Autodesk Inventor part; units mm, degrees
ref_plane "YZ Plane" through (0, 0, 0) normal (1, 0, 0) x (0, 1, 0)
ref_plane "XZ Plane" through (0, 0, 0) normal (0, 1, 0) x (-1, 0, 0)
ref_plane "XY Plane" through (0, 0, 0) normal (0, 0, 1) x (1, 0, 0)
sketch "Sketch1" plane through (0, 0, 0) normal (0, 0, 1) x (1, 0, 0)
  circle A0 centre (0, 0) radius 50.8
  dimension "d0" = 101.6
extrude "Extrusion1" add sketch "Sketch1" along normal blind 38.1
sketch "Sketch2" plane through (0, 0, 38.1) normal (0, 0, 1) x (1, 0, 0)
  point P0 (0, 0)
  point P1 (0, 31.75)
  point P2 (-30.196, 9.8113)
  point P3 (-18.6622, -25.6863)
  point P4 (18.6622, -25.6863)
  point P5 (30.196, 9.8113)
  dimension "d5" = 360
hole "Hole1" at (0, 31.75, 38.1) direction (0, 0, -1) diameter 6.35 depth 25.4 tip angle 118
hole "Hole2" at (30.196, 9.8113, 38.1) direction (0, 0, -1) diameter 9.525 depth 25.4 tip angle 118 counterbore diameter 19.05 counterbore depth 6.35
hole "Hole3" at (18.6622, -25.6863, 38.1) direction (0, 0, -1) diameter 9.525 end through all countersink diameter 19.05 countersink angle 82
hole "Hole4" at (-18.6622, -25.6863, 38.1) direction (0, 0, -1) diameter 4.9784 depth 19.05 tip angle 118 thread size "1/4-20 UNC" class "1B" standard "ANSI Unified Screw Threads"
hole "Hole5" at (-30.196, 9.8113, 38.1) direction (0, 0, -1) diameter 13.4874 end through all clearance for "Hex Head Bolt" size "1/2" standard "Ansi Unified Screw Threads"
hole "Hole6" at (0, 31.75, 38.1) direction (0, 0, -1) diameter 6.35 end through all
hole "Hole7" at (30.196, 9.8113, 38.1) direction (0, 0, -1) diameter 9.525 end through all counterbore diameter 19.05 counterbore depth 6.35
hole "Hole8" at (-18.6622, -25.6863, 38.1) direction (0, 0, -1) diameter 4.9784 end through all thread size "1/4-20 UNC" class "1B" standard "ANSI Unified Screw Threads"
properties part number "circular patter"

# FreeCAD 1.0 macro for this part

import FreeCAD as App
import Part
import Sketcher

V = App.Vector
Q = App.Units.Quantity

doc = App.newDocument("Part")
body = doc.addObject("PartDesign::Body", "Body")

# Sketch on XY plane
sketch1 = doc.addObject("Sketcher::SketchObject", "Sketch")
body.addObject(sketch1)
sketch1.AttachmentSupport = (doc.XY_Plane, [""])
sketch1.MapMode = "FlatFace"
sketch1.addGeometry(Part.Circle(V(0, 0, 0), V(0, 0, 1), 51), False)
sketch1.addConstraint([
    Sketcher.Constraint("Coincident", 0, 3, -1, 1),
    Sketcher.Constraint("Diameter", 0, Q("4 in")),
])
pad1 = doc.addObject("PartDesign::Pad", "Pad")
body.addObject(pad1)
pad1.Profile = sketch1
pad1.Length = Q("1.5 in")

# Sketch on XY plane
sketch2 = doc.addObject("Sketcher::SketchObject", "Sketch001")
body.addObject(sketch2)
sketch2.AttachmentSupport = (doc.XY_Plane, [""])
sketch2.MapMode = "FlatFace"
sketch2.AttachmentOffset = App.Placement(V(0, 0, 1.5 * 25.4), App.Rotation())
sketch2.addGeometry(Part.Circle(V(0, 31.8, 0), V(0, 0, 1), 3.2), False)
sketch2.addConstraint([
    Sketcher.Constraint("PointOnObject", 0, 3, -2),
    Sketcher.Constraint("Diameter", 0, Q("0.25 in")),
    Sketcher.Constraint("DistanceY", -1, 1, 0, 3, Q("1.25 in")),
])
doc.recompute()
hole = doc.addObject("PartDesign::Hole", "Hole")
body.addObject(hole)
hole.Profile = sketch2
hole.ThreadType = "None"
hole.Diameter = Q("0.25 in")
hole.DepthType = "Dimension"
hole.Depth = Q("1 in")
hole.DrillPoint = "Angled"
hole.DrillPointAngle = 118

# Sketch on XY plane
sketch3 = doc.addObject("Sketcher::SketchObject", "Sketch002")
body.addObject(sketch3)
sketch3.AttachmentSupport = (doc.XY_Plane, [""])
sketch3.MapMode = "FlatFace"
sketch3.AttachmentOffset = App.Placement(V(0, 0, 1.5 * 25.4), App.Rotation())
sketch3.addGeometry(Part.Circle(V(30.2, 9.8, 0), V(0, 0, 1), 4.8), False)
sketch3.addConstraint([
    Sketcher.Constraint("Diameter", 0, Q("0.375 in")),
    Sketcher.Constraint("DistanceX", -1, 1, 0, 3, 30.196),
    Sketcher.Constraint("DistanceY", -1, 1, 0, 3, 9.8113),
])
doc.recompute()
hole2 = doc.addObject("PartDesign::Hole", "Hole001")
body.addObject(hole2)
hole2.Profile = sketch3
hole2.ThreadType = "None"
hole2.Diameter = Q("0.375 in")
hole2.DepthType = "Dimension"
hole2.Depth = Q("1 in")
hole2.DrillPoint = "Angled"
hole2.DrillPointAngle = 118
hole2.HoleCutType = "Counterbore"
hole2.HoleCutDiameter = Q("0.75 in")
hole2.HoleCutDepth = Q("0.25 in")

# Sketch on XY plane
sketch4 = doc.addObject("Sketcher::SketchObject", "Sketch003")
body.addObject(sketch4)
sketch4.AttachmentSupport = (doc.XY_Plane, [""])
sketch4.MapMode = "FlatFace"
sketch4.AttachmentOffset = App.Placement(V(0, 0, 1.5 * 25.4), App.Rotation())
sketch4.addGeometry(Part.Circle(V(18.7, -25.7, 0), V(0, 0, 1), 4.8), False)
sketch4.addConstraint([
    Sketcher.Constraint("Diameter", 0, Q("0.375 in")),
    Sketcher.Constraint("DistanceX", -1, 1, 0, 3, 18.6622),
    Sketcher.Constraint("DistanceY", 0, 3, -1, 1, 25.6863),
])
doc.recompute()
hole3 = doc.addObject("PartDesign::Hole", "Hole002")
body.addObject(hole3)
hole3.Profile = sketch4
hole3.ThreadType = "None"
hole3.Diameter = Q("0.375 in")
hole3.DepthType = "ThroughAll"
hole3.HoleCutType = "Countersink"
hole3.HoleCutDiameter = Q("0.75 in")
hole3.HoleCutCountersinkAngle = 82

# Sketch on XY plane
sketch5 = doc.addObject("Sketcher::SketchObject", "Sketch004")
body.addObject(sketch5)
sketch5.AttachmentSupport = (doc.XY_Plane, [""])
sketch5.MapMode = "FlatFace"
sketch5.AttachmentOffset = App.Placement(V(0, 0, 1.5 * 25.4), App.Rotation())
sketch5.addGeometry(Part.Circle(V(-18.7, -25.7, 0), V(0, 0, 1), 2.5), False)
sketch5.addConstraint([
    Sketcher.Constraint("Diameter", 0, Q("0.196 in")),
    Sketcher.Constraint("DistanceX", 0, 3, -1, 1, 18.6622),
    Sketcher.Constraint("DistanceY", 0, 3, -1, 1, 25.6863),
])
doc.recompute()
hole4 = doc.addObject("PartDesign::Hole", "Hole003")
body.addObject(hole4)
hole4.Profile = sketch5
hole4.ThreadType = "None"
hole4.Diameter = Q("0.196 in")
hole4.DepthType = "Dimension"
hole4.Depth = Q("0.75 in")
hole4.DrillPoint = "Angled"
hole4.DrillPointAngle = 118

# Sketch on XY plane
sketch6 = doc.addObject("Sketcher::SketchObject", "Sketch005")
body.addObject(sketch6)
sketch6.AttachmentSupport = (doc.XY_Plane, [""])
sketch6.MapMode = "FlatFace"
sketch6.AttachmentOffset = App.Placement(V(0, 0, 1.5 * 25.4), App.Rotation())
sketch6.addGeometry(Part.Circle(V(-30, 10, 0), V(0, 0, 1), 7), False)
sketch6.addConstraint([
    Sketcher.Constraint("Diameter", 0, Q("0.531 in")),
    Sketcher.Constraint("DistanceX", 0, 3, -1, 1, 30.196),
    Sketcher.Constraint("DistanceY", -1, 1, 0, 3, 9.8113),
])
doc.recompute()
hole5 = doc.addObject("PartDesign::Hole", "Hole004")
body.addObject(hole5)
hole5.Profile = sketch6
hole5.ThreadType = "None"
hole5.Diameter = Q("0.531 in")
hole5.DepthType = "ThroughAll"

# Sketch on XY plane
sketch7 = doc.addObject("Sketcher::SketchObject", "Sketch006")
body.addObject(sketch7)
sketch7.AttachmentSupport = (doc.XY_Plane, [""])
sketch7.MapMode = "FlatFace"
sketch7.AttachmentOffset = App.Placement(V(0, 0, 1.5 * 25.4), App.Rotation())
sketch7.addGeometry(Part.Circle(V(0, 31.8, 0), V(0, 0, 1), 3.2), False)
sketch7.addConstraint([
    Sketcher.Constraint("PointOnObject", 0, 3, -2),
    Sketcher.Constraint("Diameter", 0, Q("0.25 in")),
    Sketcher.Constraint("DistanceY", -1, 1, 0, 3, Q("1.25 in")),
])
doc.recompute()
hole6 = doc.addObject("PartDesign::Hole", "Hole005")
body.addObject(hole6)
hole6.Profile = sketch7
hole6.ThreadType = "None"
hole6.Diameter = Q("0.25 in")
hole6.DepthType = "ThroughAll"

# Sketch on XY plane
sketch8 = doc.addObject("Sketcher::SketchObject", "Sketch007")
body.addObject(sketch8)
sketch8.AttachmentSupport = (doc.XY_Plane, [""])
sketch8.MapMode = "FlatFace"
sketch8.AttachmentOffset = App.Placement(V(0, 0, 1.5 * 25.4), App.Rotation())
sketch8.addGeometry(Part.Circle(V(30.2, 9.8, 0), V(0, 0, 1), 4.8), False)
sketch8.addConstraint([
    Sketcher.Constraint("Diameter", 0, Q("0.375 in")),
    Sketcher.Constraint("DistanceX", -1, 1, 0, 3, 30.196),
    Sketcher.Constraint("DistanceY", -1, 1, 0, 3, 9.8113),
])
doc.recompute()
hole7 = doc.addObject("PartDesign::Hole", "Hole006")
body.addObject(hole7)
hole7.Profile = sketch8
hole7.ThreadType = "None"
hole7.Diameter = Q("0.375 in")
hole7.DepthType = "ThroughAll"
hole7.HoleCutType = "Counterbore"
hole7.HoleCutDiameter = Q("0.75 in")
hole7.HoleCutDepth = Q("0.25 in")

# Sketch on XY plane
sketch9 = doc.addObject("Sketcher::SketchObject", "Sketch008")
body.addObject(sketch9)
sketch9.AttachmentSupport = (doc.XY_Plane, [""])
sketch9.MapMode = "FlatFace"
sketch9.AttachmentOffset = App.Placement(V(0, 0, 1.5 * 25.4), App.Rotation())
sketch9.addGeometry(Part.Circle(V(-18.7, -25.7, 0), V(0, 0, 1), 2.5), False)
sketch9.addConstraint([
    Sketcher.Constraint("Diameter", 0, Q("0.196 in")),
    Sketcher.Constraint("DistanceX", 0, 3, -1, 1, 18.6622),
    Sketcher.Constraint("DistanceY", 0, 3, -1, 1, 25.6863),
])
doc.recompute()
hole8 = doc.addObject("PartDesign::Hole", "Hole007")
body.addObject(hole8)
hole8.Profile = sketch9
hole8.ThreadType = "None"
hole8.Diameter = Q("0.196 in")
hole8.DepthType = "ThroughAll"

doc.recompute()
